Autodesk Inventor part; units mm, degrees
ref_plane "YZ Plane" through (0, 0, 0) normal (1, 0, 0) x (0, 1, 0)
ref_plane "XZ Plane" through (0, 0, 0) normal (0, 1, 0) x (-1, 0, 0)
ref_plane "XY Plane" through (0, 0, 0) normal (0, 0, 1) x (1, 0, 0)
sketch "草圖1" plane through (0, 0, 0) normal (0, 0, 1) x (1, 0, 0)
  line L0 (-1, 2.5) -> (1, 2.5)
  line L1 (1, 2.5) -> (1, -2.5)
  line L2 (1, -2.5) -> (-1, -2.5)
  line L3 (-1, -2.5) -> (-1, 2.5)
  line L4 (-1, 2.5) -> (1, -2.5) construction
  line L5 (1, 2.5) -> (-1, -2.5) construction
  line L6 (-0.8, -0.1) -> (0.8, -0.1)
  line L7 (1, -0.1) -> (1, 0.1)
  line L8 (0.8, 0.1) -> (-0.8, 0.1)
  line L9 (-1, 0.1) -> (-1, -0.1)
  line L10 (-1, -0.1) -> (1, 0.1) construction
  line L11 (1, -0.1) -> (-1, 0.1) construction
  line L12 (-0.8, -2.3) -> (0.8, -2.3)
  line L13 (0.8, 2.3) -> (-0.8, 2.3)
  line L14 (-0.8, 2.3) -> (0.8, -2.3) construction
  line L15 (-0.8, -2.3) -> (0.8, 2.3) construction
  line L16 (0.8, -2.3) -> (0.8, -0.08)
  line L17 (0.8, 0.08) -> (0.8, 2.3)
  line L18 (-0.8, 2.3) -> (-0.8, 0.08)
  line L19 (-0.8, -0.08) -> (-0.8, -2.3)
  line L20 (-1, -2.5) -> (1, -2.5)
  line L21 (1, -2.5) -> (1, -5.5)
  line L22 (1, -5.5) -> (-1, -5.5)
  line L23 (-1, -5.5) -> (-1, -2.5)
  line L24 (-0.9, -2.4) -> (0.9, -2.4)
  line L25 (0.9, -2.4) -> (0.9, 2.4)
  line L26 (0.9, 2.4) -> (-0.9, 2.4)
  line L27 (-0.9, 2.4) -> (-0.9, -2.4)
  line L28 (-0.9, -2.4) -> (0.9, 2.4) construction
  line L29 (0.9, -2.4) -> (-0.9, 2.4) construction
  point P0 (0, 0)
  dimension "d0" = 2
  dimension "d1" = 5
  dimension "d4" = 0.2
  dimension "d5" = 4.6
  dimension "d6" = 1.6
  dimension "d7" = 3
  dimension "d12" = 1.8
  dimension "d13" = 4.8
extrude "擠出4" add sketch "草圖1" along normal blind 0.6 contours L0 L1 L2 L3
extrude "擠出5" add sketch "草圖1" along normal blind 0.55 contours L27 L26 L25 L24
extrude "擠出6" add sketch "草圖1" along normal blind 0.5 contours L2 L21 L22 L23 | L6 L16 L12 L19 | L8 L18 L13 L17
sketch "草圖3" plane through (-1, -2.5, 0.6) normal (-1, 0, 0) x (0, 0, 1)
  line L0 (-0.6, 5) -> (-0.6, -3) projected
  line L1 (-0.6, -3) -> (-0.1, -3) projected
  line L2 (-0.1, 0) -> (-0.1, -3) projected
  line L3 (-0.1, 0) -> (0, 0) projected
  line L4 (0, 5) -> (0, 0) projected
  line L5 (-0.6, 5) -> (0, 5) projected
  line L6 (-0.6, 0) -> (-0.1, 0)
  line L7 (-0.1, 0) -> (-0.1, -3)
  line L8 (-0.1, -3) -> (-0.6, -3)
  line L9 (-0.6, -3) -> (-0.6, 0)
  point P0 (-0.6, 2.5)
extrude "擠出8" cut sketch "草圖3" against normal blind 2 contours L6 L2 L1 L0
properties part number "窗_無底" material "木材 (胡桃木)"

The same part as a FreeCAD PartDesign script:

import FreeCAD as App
import Part
import Sketcher
from FreeCAD import Vector

doc = App.newDocument("Part")
body = doc.addObject("PartDesign::Body", "Body")

# Sketch on XY plane
sketch1 = body.newObject("Sketcher::SketchObject", "Sketch")
sketch1.AttachmentSupport = (doc.getObject("XY_Plane"), [""])
sketch1.MapMode = "FlatFace"
sketch1.addGeometry(Part.LineSegment(Vector(1, 2.5, 0), Vector(-1, 2.5, 0)), False)
sketch1.addGeometry(Part.LineSegment(Vector(-1, 2.5, 0), Vector(-1, -2.5, 0)), False)
sketch1.addGeometry(Part.LineSegment(Vector(-1, -2.5, 0), Vector(1, -2.5, 0)), False)
sketch1.addGeometry(Part.LineSegment(Vector(1, -2.5, 0), Vector(1, 2.5, 0)), False)
sketch1.addGeometry(Part.LineSegment(Vector(0.9, -2.4, 0), Vector(-0.9, -2.4, 0)), False)
sketch1.addGeometry(Part.LineSegment(Vector(-0.9, -2.4, 0), Vector(-0.9, 2.4, 0)), False)
sketch1.addGeometry(Part.LineSegment(Vector(-0.9, 2.4, 0), Vector(0.9, 2.4, 0)), False)
sketch1.addGeometry(Part.LineSegment(Vector(0.9, 2.4, 0), Vector(0.9, -2.4, 0)), False)
sketch1.addConstraint(Sketcher.Constraint("Coincident", 0, 2, 1, 1))
sketch1.addConstraint(Sketcher.Constraint("Coincident", 1, 2, 2, 1))
sketch1.addConstraint(Sketcher.Constraint("Coincident", 2, 2, 3, 1))
sketch1.addConstraint(Sketcher.Constraint("Coincident", 3, 2, 0, 1))
sketch1.addConstraint(Sketcher.Constraint("Coincident", 4, 2, 5, 1))
sketch1.addConstraint(Sketcher.Constraint("Coincident", 5, 2, 6, 1))
sketch1.addConstraint(Sketcher.Constraint("Coincident", 6, 2, 7, 1))
sketch1.addConstraint(Sketcher.Constraint("Coincident", 7, 2, 4, 1))
sketch1.addConstraint(Sketcher.Constraint("Horizontal", 0))
sketch1.addConstraint(Sketcher.Constraint("Vertical", 1))
sketch1.addConstraint(Sketcher.Constraint("Horizontal", 2))
sketch1.addConstraint(Sketcher.Constraint("Vertical", 3))
sketch1.addConstraint(Sketcher.Constraint("Horizontal", 4))
sketch1.addConstraint(Sketcher.Constraint("Vertical", 5))
sketch1.addConstraint(Sketcher.Constraint("Horizontal", 6))
sketch1.addConstraint(Sketcher.Constraint("Vertical", 7))
sketch1.addConstraint(Sketcher.Constraint("Symmetric", 0, 2, 2, 2, -1, 1))
sketch1.addConstraint(Sketcher.Constraint("Symmetric", 4, 2, 6, 2, -1, 1))
sketch1.addConstraint(Sketcher.Constraint("DistanceX", 0, 2, 0, 1, 2.0))
sketch1.addConstraint(Sketcher.Constraint("DistanceY", 1, 2, 1, 1, 5.0))
sketch1.addConstraint(Sketcher.Constraint("DistanceX", 4, 2, 4, 1, 1.8))
sketch1.addConstraint(Sketcher.Constraint("DistanceY", 5, 1, 5, 2, 4.8))
pad1 = body.newObject("PartDesign::Pad", "Pad")
pad1.Profile = sketch1
pad1.Length = 0.6

# Sketch on XY plane
sketch2 = body.newObject("Sketcher::SketchObject", "Sketch001")
sketch2.AttachmentSupport = (doc.getObject("XY_Plane"), [""])
sketch2.MapMode = "FlatFace"
sketch2.addGeometry(Part.LineSegment(Vector(-0.9, 2.4, 0), Vector(-0.9, -2.4, 0)), False)
sketch2.addGeometry(Part.LineSegment(Vector(-0.9, -2.4, 0), Vector(0.9, -2.4, 0)), False)
sketch2.addGeometry(Part.LineSegment(Vector(0.9, -2.4, 0), Vector(0.9, 2.4, 0)), False)
sketch2.addGeometry(Part.LineSegment(Vector(0.9, 2.4, 0), Vector(-0.9, 2.4, 0)), False)
sketch2.addGeometry(Part.LineSegment(Vector(-0.8, -2.3, 0), Vector(-0.8, -0.1, 0)), False)
sketch2.addGeometry(Part.LineSegment(Vector(-0.8, -0.1, 0), Vector(0.8, -0.1, 0)), False)
sketch2.addGeometry(Part.LineSegment(Vector(0.8, -0.1, 0), Vector(0.8, -2.3, 0)), False)
sketch2.addGeometry(Part.LineSegment(Vector(0.8, -2.3, 0), Vector(-0.8, -2.3, 0)), False)
sketch2.addGeometry(Part.LineSegment(Vector(0.8, 2.3, 0), Vector(0.8, 0.1, 0)), False)
sketch2.addGeometry(Part.LineSegment(Vector(0.8, 0.1, 0), Vector(-0.8, 0.1, 0)), False)
sketch2.addGeometry(Part.LineSegment(Vector(-0.8, 0.1, 0), Vector(-0.8, 2.3, 0)), False)
sketch2.addGeometry(Part.LineSegment(Vector(-0.8, 2.3, 0), Vector(0.8, 2.3, 0)), False)
sketch2.addConstraint(Sketcher.Constraint("Coincident", 0, 2, 1, 1))
sketch2.addConstraint(Sketcher.Constraint("Coincident", 1, 2, 2, 1))
sketch2.addConstraint(Sketcher.Constraint("Coincident", 2, 2, 3, 1))
sketch2.addConstraint(Sketcher.Constraint("Coincident", 3, 2, 0, 1))
sketch2.addConstraint(Sketcher.Constraint("Coincident", 4, 2, 5, 1))
sketch2.addConstraint(Sketcher.Constraint("Coincident", 5, 2, 6, 1))
sketch2.addConstraint(Sketcher.Constraint("Coincident", 6, 2, 7, 1))
sketch2.addConstraint(Sketcher.Constraint("Coincident", 7, 2, 4, 1))
sketch2.addConstraint(Sketcher.Constraint("Coincident", 8, 2, 9, 1))
sketch2.addConstraint(Sketcher.Constraint("Coincident", 9, 2, 10, 1))
sketch2.addConstraint(Sketcher.Constraint("Coincident", 10, 2, 11, 1))
sketch2.addConstraint(Sketcher.Constraint("Coincident", 11, 2, 8, 1))
sketch2.addConstraint(Sketcher.Constraint("Vertical", 0))
sketch2.addConstraint(Sketcher.Constraint("Horizontal", 1))
sketch2.addConstraint(Sketcher.Constraint("Vertical", 2))
sketch2.addConstraint(Sketcher.Constraint("Horizontal", 3))
sketch2.addConstraint(Sketcher.Constraint("Vertical", 4))
sketch2.addConstraint(Sketcher.Constraint("Horizontal", 5))
sketch2.addConstraint(Sketcher.Constraint("Vertical", 6))
sketch2.addConstraint(Sketcher.Constraint("Horizontal", 7))
sketch2.addConstraint(Sketcher.Constraint("Vertical", 8))
sketch2.addConstraint(Sketcher.Constraint("Horizontal", 9))
sketch2.addConstraint(Sketcher.Constraint("Vertical", 10))
sketch2.addConstraint(Sketcher.Constraint("Horizontal", 11))
sketch2.addConstraint(Sketcher.Constraint("Symmetric", 0, 2, 2, 2, -1, 1))
sketch2.addConstraint(Sketcher.Constraint("Symmetric", 4, 2, 8, 2, -1, 1))
sketch2.addConstraint(Sketcher.Constraint("Symmetric", 6, 2, 10, 2, -1, 1))
sketch2.addConstraint(Sketcher.Constraint("Vertical", 6, 2, 8, 2))
sketch2.addConstraint(Sketcher.Constraint("DistanceX", 1, 1, 1, 2, 1.8))
sketch2.addConstraint(Sketcher.Constraint("DistanceX", 5, 1, 5, 2, 1.6))
sketch2.addConstraint(Sketcher.Constraint("DistanceY", 0, 2, 0, 1, 4.8))
sketch2.addConstraint(Sketcher.Constraint("DistanceY", 5, 2, 8, 2, 0.2))
sketch2.addConstraint(Sketcher.Constraint("DistanceY", 4, 1, 4, 2, 2.2))
pad2 = body.newObject("PartDesign::Pad", "Pad001")
pad2.Profile = sketch2
pad2.Length = 0.55

# Sketch on XY plane
sketch3 = body.newObject("Sketcher::SketchObject", "Sketch002")
sketch3.AttachmentSupport = (doc.getObject("XY_Plane"), [""])
sketch3.MapMode = "FlatFace"
sketch3.addGeometry(Part.LineSegment(Vector(1, -2.5, 0), Vector(-1, -2.5, 0)), False)
sketch3.addGeometry(Part.LineSegment(Vector(-1, -2.5, 0), Vector(-1, -5.5, 0)), False)
sketch3.addGeometry(Part.LineSegment(Vector(-1, -5.5, 0), Vector(1, -5.5, 0)), False)
sketch3.addGeometry(Part.LineSegment(Vector(1, -5.5, 0), Vector(1, -2.5, 0)), False)
sketch3.addGeometry(Part.LineSegment(Vector(0.8, -0.1, 0), Vector(-0.8, -0.1, 0)), False)
sketch3.addGeometry(Part.LineSegment(Vector(-0.8, -0.1, 0), Vector(-0.8, -2.3, 0)), False)
sketch3.addGeometry(Part.LineSegment(Vector(-0.8, -2.3, 0), Vector(0.8, -2.3, 0)), False)
sketch3.addGeometry(Part.LineSegment(Vector(0.8, -2.3, 0), Vector(0.8, -0.1, 0)), False)
sketch3.addGeometry(Part.LineSegment(Vector(-0.8, 0.1, 0), Vector(0.8, 0.1, 0)), False)
sketch3.addGeometry(Part.LineSegment(Vector(0.8, 0.1, 0), Vector(0.8, 2.3, 0)), False)
sketch3.addGeometry(Part.LineSegment(Vector(0.8, 2.3, 0), Vector(-0.8, 2.3, 0)), False)
sketch3.addGeometry(Part.LineSegment(Vector(-0.8, 2.3, 0), Vector(-0.8, 0.1, 0)), False)
sketch3.addConstraint(Sketcher.Constraint("Coincident", 0, 2, 1, 1))
sketch3.addConstraint(Sketcher.Constraint("Coincident", 1, 2, 2, 1))
sketch3.addConstraint(Sketcher.Constraint("Coincident", 2, 2, 3, 1))
sketch3.addConstraint(Sketcher.Constraint("Coincident", 3, 2, 0, 1))
sketch3.addConstraint(Sketcher.Constraint("Coincident", 4, 2, 5, 1))
sketch3.addConstraint(Sketcher.Constraint("Coincident", 5, 2, 6, 1))
sketch3.addConstraint(Sketcher.Constraint("Coincident", 6, 2, 7, 1))
sketch3.addConstraint(Sketcher.Constraint("Coincident", 7, 2, 4, 1))
sketch3.addConstraint(Sketcher.Constraint("Coincident", 8, 2, 9, 1))
sketch3.addConstraint(Sketcher.Constraint("Coincident", 9, 2, 10, 1))
sketch3.addConstraint(Sketcher.Constraint("Coincident", 10, 2, 11, 1))
sketch3.addConstraint(Sketcher.Constraint("Coincident", 11, 2, 8, 1))
sketch3.addConstraint(Sketcher.Constraint("Horizontal", 0))
sketch3.addConstraint(Sketcher.Constraint("Vertical", 1))
sketch3.addConstraint(Sketcher.Constraint("Horizontal", 2))
sketch3.addConstraint(Sketcher.Constraint("Vertical", 3))
sketch3.addConstraint(Sketcher.Constraint("Horizontal", 4))
sketch3.addConstraint(Sketcher.Constraint("Vertical", 5))
sketch3.addConstraint(Sketcher.Constraint("Horizontal", 6))
sketch3.addConstraint(Sketcher.Constraint("Vertical", 7))
sketch3.addConstraint(Sketcher.Constraint("Horizontal", 8))
sketch3.addConstraint(Sketcher.Constraint("Vertical", 9))
sketch3.addConstraint(Sketcher.Constraint("Horizontal", 10))
sketch3.addConstraint(Sketcher.Constraint("Vertical", 11))
sketch3.addConstraint(Sketcher.Constraint("Symmetric", 4, 2, 8, 2, -1, 1))
sketch3.addConstraint(Sketcher.Constraint("Symmetric", 6, 2, 10, 2, -1, 1))
sketch3.addConstraint(Sketcher.Constraint("Vertical", 7, 2, 8, 2))
sketch3.addConstraint(Sketcher.Constraint("DistanceX", 0, 2, 0, 1, 2.0))
sketch3.addConstraint(Sketcher.Constraint("DistanceY", 1, 2, 1, 1, 3.0))
sketch3.addConstraint(Sketcher.Constraint("DistanceX", 4, 2, 4, 1, 1.6))
sketch3.addConstraint(Sketcher.Constraint("DistanceX", 0, 2, 4, 2, 0.2))
sketch3.addConstraint(Sketcher.Constraint("DistanceY", 0, 2, 5, 2, 0.2))
sketch3.addConstraint(Sketcher.Constraint("DistanceY", 7, 2, 8, 2, 0.2))
sketch3.addConstraint(Sketcher.Constraint("DistanceY", 6, 2, 9, 2, 4.6))
pad3 = body.newObject("PartDesign::Pad", "Pad002")
pad3.Profile = sketch3
pad3.Length = 0.5

# Sketch on YZ plane
sketch4 = body.newObject("Sketcher::SketchObject", "Sketch003")
sketch4.AttachmentSupport = (doc.getObject("YZ_Plane"), [""])
sketch4.MapMode = "FlatFace"
sketch4.AttachmentOffset = App.Placement(Vector(0, 0, -1), App.Rotation())
sketch4.addGeometry(Part.LineSegment(Vector(-2.5, 0.5, 0), Vector(-2.5, 0, 0)), False)
sketch4.addGeometry(Part.LineSegment(Vector(-2.5, 0, 0), Vector(-5.5, 0, 0)), False)
sketch4.addGeometry(Part.LineSegment(Vector(-5.5, 0, 0), Vector(-5.5, 0.5, 0)), False)
sketch4.addGeometry(Part.LineSegment(Vector(-5.5, 0.5, 0), Vector(-2.5, 0.5, 0)), False)
sketch4.addConstraint(Sketcher.Constraint("Coincident", 0, 2, 1, 1))
sketch4.addConstraint(Sketcher.Constraint("Coincident", 1, 2, 2, 1))
sketch4.addConstraint(Sketcher.Constraint("Coincident", 2, 2, 3, 1))
sketch4.addConstraint(Sketcher.Constraint("Coincident", 3, 2, 0, 1))
sketch4.addConstraint(Sketcher.Constraint("Vertical", 0))
sketch4.addConstraint(Sketcher.Constraint("Horizontal", 1))
sketch4.addConstraint(Sketcher.Constraint("Vertical", 2))
sketch4.addConstraint(Sketcher.Constraint("Horizontal", 3))
sketch4.addConstraint(Sketcher.Constraint("PointOnObject", 0, 2, -1))
sketch4.addConstraint(Sketcher.Constraint("DistanceX", 1, 2, 1, 1, 3.0))
sketch4.addConstraint(Sketcher.Constraint("DistanceY", 0, 2, 0, 1, 0.5))
sketch4.addConstraint(Sketcher.Constraint("DistanceX", 0, 2, -1, 1, 2.5))
pocket1 = body.newObject("PartDesign::Pocket", "Pocket")
pocket1.Profile = sketch4
pocket1.Length = 2
pocket1.Reversed = True

doc.recompute()
